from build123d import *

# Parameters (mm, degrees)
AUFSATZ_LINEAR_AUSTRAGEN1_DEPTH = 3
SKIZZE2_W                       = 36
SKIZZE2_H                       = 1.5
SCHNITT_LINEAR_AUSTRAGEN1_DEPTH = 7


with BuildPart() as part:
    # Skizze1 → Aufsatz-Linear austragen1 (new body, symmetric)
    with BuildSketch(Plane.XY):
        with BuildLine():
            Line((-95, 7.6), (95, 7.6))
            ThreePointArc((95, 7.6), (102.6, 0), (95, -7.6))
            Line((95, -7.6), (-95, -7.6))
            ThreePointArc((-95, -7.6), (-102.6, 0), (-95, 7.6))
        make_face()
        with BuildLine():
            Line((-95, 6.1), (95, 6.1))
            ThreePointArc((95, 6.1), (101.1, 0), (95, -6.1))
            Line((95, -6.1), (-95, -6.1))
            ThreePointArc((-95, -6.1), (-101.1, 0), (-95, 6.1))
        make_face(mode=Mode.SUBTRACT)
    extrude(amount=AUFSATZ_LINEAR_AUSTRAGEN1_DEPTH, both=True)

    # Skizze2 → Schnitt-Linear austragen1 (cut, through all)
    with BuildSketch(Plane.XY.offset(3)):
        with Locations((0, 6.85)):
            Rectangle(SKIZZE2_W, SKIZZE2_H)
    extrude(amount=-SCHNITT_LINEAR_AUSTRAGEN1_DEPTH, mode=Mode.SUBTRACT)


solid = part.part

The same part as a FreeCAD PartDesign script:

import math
import FreeCAD as App
import Part
import Sketcher

V = App.Vector
Q = App.Units.Quantity


def add_polygon(sketch, points):
    """Adds a closed chain of lines whose ends are joined by coincident constraints."""
    first, n = sketch.GeometryCount, len(points)
    for a, b in zip(points, points[1:] + points[:1]):
        sketch.addGeometry(Part.LineSegment(App.Vector(*a, 0), App.Vector(*b, 0)), False)
    for i in range(n):
        sketch.addConstraint(Sketcher.Constraint("Coincident", first + i, 2, first + (i + 1) % n, 1))

doc = App.newDocument("Part")
body = doc.addObject("PartDesign::Body", "Body")

# Sketch on XY plane
sketch1 = body.newObject("Sketcher::SketchObject", "Sketch")
sketch1.AttachmentSupport = (doc.getObject("XY_Plane"), [""])
sketch1.MapMode = "FlatFace"
sketch1.addGeometry(Part.LineSegment(V(95, 7.6, 0), V(-95, 7.6, 0)), False)
sketch1.addGeometry(Part.ArcOfCircle(Part.Circle(V(-95, 0, 0), V(0, 0, 1), 7.6), math.radians(90), math.radians(270)), False)
sketch1.addGeometry(Part.LineSegment(V(-95, -7.6, 0), V(95, -7.6, 0)), False)
sketch1.addGeometry(Part.ArcOfCircle(Part.Circle(V(95, 0, 0), V(0, 0, 1), 7.6), math.radians(-90), math.radians(90)), False)
sketch1.addGeometry(Part.LineSegment(V(-95, 6.1, 0), V(95, 6.1, 0)), False)
sketch1.addGeometry(Part.ArcOfCircle(Part.Circle(V(95, 0, 0), V(0, 0, 1), 6.1), math.radians(-90), math.radians(90)), False)
sketch1.addGeometry(Part.LineSegment(V(95, -6.1, 0), V(-95, -6.1, 0)), False)
sketch1.addGeometry(Part.ArcOfCircle(Part.Circle(V(-95, 0, 0), V(0, 0, 1), 6.1), math.radians(90), math.radians(270)), False)
sketch1.addConstraint(Sketcher.Constraint("Tangent", 0, 2, 1, 1))
sketch1.addConstraint(Sketcher.Constraint("Tangent", 1, 2, 2, 1))
sketch1.addConstraint(Sketcher.Constraint("Tangent", 2, 2, 3, 1))
sketch1.addConstraint(Sketcher.Constraint("Tangent", 3, 2, 0, 1))
sketch1.addConstraint(Sketcher.Constraint("Tangent", 4, 2, 5, 2))
sketch1.addConstraint(Sketcher.Constraint("Tangent", 5, 1, 6, 1))
sketch1.addConstraint(Sketcher.Constraint("Tangent", 6, 2, 7, 2))
sketch1.addConstraint(Sketcher.Constraint("Tangent", 7, 1, 4, 1))
sketch1.addConstraint(Sketcher.Constraint("Horizontal", 0))
sketch1.addConstraint(Sketcher.Constraint("Horizontal", 2))
sketch1.addConstraint(Sketcher.Constraint("Horizontal", 4))
sketch1.addConstraint(Sketcher.Constraint("Horizontal", 6))
sketch1.addConstraint(Sketcher.Constraint("Coincident", 5, 3, 3, 3))
sketch1.addConstraint(Sketcher.Constraint("Symmetric", 1, 3, 3, 3, -1, 1))
sketch1.addConstraint(Sketcher.Constraint("Vertical", 7, 3, 0, 2))
sketch1.addConstraint(Sketcher.Constraint("Radius", 1, Q("7.6 mm")))
sketch1.addConstraint(Sketcher.Constraint("Radius", 5, Q("6.1 mm")))
sketch1.addConstraint(Sketcher.Constraint("DistanceX", 0, 2, 0, 1, Q("190 mm")))
pad1 = body.newObject("PartDesign::Pad", "Pad")
pad1.Profile = sketch1
pad1.Length = 6
pad1.Midplane = True

# Sketch on XY plane
sketch2 = body.newObject("Sketcher::SketchObject", "Sketch001")
sketch2.AttachmentSupport = (doc.getObject("XY_Plane"), [""])
sketch2.MapMode = "FlatFace"
sketch2.AttachmentOffset = App.Placement(V(0, 0, 3), App.Rotation())
add_polygon(sketch2, [(-18, 7.6), (-18, 6.1), (18, 6.1), (18, 7.6)])  # lines 0-3
sketch2.addConstraint(Sketcher.Constraint("Vertical", 0))
sketch2.addConstraint(Sketcher.Constraint("Horizontal", 1))
sketch2.addConstraint(Sketcher.Constraint("Vertical", 2))
sketch2.addConstraint(Sketcher.Constraint("Horizontal", 3))
sketch2.addConstraint(Sketcher.Constraint("DistanceX", 1, 1, 1, 2, Q("36 mm")))
sketch2.addConstraint(Sketcher.Constraint("DistanceY", 0, 2, 0, 1, Q("1.5 mm")))
sketch2.addConstraint(Sketcher.Constraint("DistanceX", 0, 2, -1, 1, Q("18 mm")))
sketch2.addConstraint(Sketcher.Constraint("DistanceY", -1, 1, 0, 2, Q("6.1 mm")))
pocket1 = body.newObject("PartDesign::Pocket", "Pocket")
pocket1.Profile = sketch2
pocket1.Type = "ThroughAll"

doc.recompute()
